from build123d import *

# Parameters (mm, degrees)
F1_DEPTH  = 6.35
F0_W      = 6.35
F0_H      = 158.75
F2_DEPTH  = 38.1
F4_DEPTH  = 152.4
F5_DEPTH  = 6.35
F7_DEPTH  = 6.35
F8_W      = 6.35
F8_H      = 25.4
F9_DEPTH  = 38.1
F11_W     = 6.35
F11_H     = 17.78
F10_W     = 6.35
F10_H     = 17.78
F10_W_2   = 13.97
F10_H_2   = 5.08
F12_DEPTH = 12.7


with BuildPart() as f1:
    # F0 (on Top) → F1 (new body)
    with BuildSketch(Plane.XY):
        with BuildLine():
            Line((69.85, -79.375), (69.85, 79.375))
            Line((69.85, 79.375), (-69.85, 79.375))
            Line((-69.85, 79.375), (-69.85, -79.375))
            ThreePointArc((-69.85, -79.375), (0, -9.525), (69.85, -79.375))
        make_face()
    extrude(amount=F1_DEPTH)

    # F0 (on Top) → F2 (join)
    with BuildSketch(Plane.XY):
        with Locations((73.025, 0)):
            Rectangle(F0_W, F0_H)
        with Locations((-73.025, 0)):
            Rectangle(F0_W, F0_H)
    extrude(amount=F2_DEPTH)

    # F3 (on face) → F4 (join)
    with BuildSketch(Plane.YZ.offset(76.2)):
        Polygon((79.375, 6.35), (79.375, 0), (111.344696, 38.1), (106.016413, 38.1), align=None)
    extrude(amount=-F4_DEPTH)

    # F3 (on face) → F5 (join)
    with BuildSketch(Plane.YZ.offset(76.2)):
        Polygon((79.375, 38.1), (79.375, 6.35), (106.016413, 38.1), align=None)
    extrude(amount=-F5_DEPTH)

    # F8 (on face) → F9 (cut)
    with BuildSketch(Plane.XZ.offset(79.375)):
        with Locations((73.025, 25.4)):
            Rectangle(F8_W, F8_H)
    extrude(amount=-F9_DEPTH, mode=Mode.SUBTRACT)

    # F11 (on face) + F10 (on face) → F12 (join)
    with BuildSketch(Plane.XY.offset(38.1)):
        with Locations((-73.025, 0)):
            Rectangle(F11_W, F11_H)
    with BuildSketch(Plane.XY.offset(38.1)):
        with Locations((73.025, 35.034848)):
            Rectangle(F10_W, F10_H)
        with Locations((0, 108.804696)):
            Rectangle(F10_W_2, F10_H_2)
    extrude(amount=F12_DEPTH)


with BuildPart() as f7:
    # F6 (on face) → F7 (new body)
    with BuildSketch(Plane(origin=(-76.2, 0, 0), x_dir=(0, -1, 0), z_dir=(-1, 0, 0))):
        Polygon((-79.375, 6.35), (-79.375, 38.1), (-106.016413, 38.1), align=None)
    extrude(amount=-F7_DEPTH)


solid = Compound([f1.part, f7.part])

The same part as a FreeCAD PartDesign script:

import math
import FreeCAD as App
import Part
import Sketcher
from FreeCAD import Vector
Q = App.Units.Quantity


def add_polygon(sketch, points):
    """Adds a closed chain of lines whose ends are joined by coincident constraints."""
    first, n = sketch.GeometryCount, len(points)
    for a, b in zip(points, points[1:] + points[:1]):
        sketch.addGeometry(Part.LineSegment(App.Vector(*a, 0), App.Vector(*b, 0)), False)
    for i in range(n):
        sketch.addConstraint(Sketcher.Constraint("Coincident", first + i, 2, first + (i + 1) % n, 1))

doc = App.newDocument("Part")
body = doc.addObject("PartDesign::Body", "Body")

# Sketch on XY plane
sketch1 = body.newObject("Sketcher::SketchObject", "Sketch")
sketch1.AttachmentSupport = (doc.getObject("XY_Plane"), [""])
sketch1.MapMode = "FlatFace"
sketch1.addGeometry([
    Part.LineSegment(Vector(70, -79, 0), Vector(70, 79, 0)),
    Part.LineSegment(Vector(70, 79, 0), Vector(-70, 79, 0)),
    Part.LineSegment(Vector(-70, 79, 0), Vector(-70, -79, 0)),
    Part.ArcOfCircle(Part.Circle(Vector(0, -79, 0), Vector(0, 0, 1), 70), math.radians(0), math.radians(180)),
], False)
sketch1.addConstraint([
    Sketcher.Constraint("Coincident", 0, 2, 1, 1),
    Sketcher.Constraint("Coincident", 1, 2, 2, 1),
    Sketcher.Constraint("Tangent", 2, 2, 3, 2),
    Sketcher.Constraint("Tangent", 3, 1, 0, 1),
    Sketcher.Constraint("Vertical", 0),
    Sketcher.Constraint("Horizontal", 1),
    Sketcher.Constraint("Vertical", 2),
    Sketcher.Constraint("Symmetric", 0, 2, 2, 2, -1, 1),
    Sketcher.Constraint("Radius", 3, Q("2.75 in")),
    Sketcher.Constraint("DistanceY", 0, 1, 0, 2, Q("6.25 in")),
])
pad1 = body.newObject("PartDesign::Pad", "Pad")
pad1.Profile = sketch1
pad1.Length = Q("0.25 in")

# Sketch on XY plane
sketch2 = body.newObject("Sketcher::SketchObject", "Sketch001")
sketch2.AttachmentSupport = (doc.getObject("XY_Plane"), [""])
sketch2.MapMode = "FlatFace"
add_polygon(sketch2, [(70, 79), (70, -79), (76, -79), (76, 79)])  # lines 0-3
add_polygon(sketch2, [(-76, 79), (-76, -79), (-70, -79), (-70, 79)])  # lines 4-7
sketch2.addConstraint([
    Sketcher.Constraint("Vertical", 0),
    Sketcher.Constraint("Horizontal", 1),
    Sketcher.Constraint("Vertical", 2),
    Sketcher.Constraint("Horizontal", 3),
    Sketcher.Constraint("Vertical", 4),
    Sketcher.Constraint("Horizontal", 5),
    Sketcher.Constraint("Vertical", 6),
    Sketcher.Constraint("Horizontal", 7),
    Sketcher.Constraint("Symmetric", 2, 2, 4, 2, -1, 1),
    Sketcher.Constraint("Symmetric", 0, 2, 6, 2, -1, 1),
    Sketcher.Constraint("Horizontal", 1, 2, 4, 2),
    Sketcher.Constraint("DistanceX", -1, 1, 1, 2, Q("3 in")),
    Sketcher.Constraint("DistanceX", 1, 1, 1, 2, Q("0.25 in")),
    Sketcher.Constraint("DistanceY", 0, 2, 0, 1, Q("6.25 in")),
])
pad2 = body.newObject("PartDesign::Pad", "Pad001")
pad2.Profile = sketch2
pad2.Length = Q("1.5 in")

# Sketch on YZ plane
sketch3 = body.newObject("Sketcher::SketchObject", "Sketch002")
sketch3.AttachmentSupport = (doc.getObject("YZ_Plane"), [""])
sketch3.MapMode = "FlatFace"
sketch3.AttachmentOffset = App.Placement(Vector(0, 0, 3 * 25.4), App.Rotation())
add_polygon(sketch3, [(79, 6), (79, 0), (111, 38), (106, 38)])  # lines 0-3
sketch3.addConstraint([
    Sketcher.Constraint("Vertical", 0),
    Sketcher.Constraint("Horizontal", 2),
    Sketcher.Constraint("PointOnObject", 0, 2, -1),
    Sketcher.Constraint("Parallel", 1, 3),
    Sketcher.Constraint("Angle", 1, Q("50 deg")),
    Sketcher.Constraint("DistanceY", 0, 2, 0, 1, Q("0.25 in")),
    Sketcher.Constraint("DistanceY", -1, 1, 1, 2, Q("1.5 in")),
    Sketcher.Constraint("DistanceX", -1, 1, 0, 2, Q("3.125 in")),
])
pad3 = body.newObject("PartDesign::Pad", "Pad002")
pad3.Profile = sketch3
pad3.Length = Q("6 in")
pad3.Reversed = True

# Sketch on YZ plane
sketch4 = body.newObject("Sketcher::SketchObject", "Sketch003")
sketch4.AttachmentSupport = (doc.getObject("YZ_Plane"), [""])
sketch4.MapMode = "FlatFace"
sketch4.AttachmentOffset = App.Placement(Vector(0, 0, 3 * 25.4), App.Rotation())
add_polygon(sketch4, [(79, 38), (79, 6), (106, 38)])  # lines 0-2
sketch4.addConstraint([
    Sketcher.Constraint("Vertical", 0),
    Sketcher.Constraint("Horizontal", 2),
    Sketcher.Constraint("Angle", 1, Q("50 deg")),
    Sketcher.Constraint("DistanceY", 0, 2, 0, 1, Q("1.25 in")),
    Sketcher.Constraint("DistanceY", -1, 1, 1, 2, Q("1.5 in")),
    Sketcher.Constraint("DistanceX", -1, 1, 0, 2, Q("3.125 in")),
])
pad4 = body.newObject("PartDesign::Pad", "Pad003")
pad4.Profile = sketch4
pad4.Length = Q("0.25 in")
pad4.Reversed = True

# Sketch on XZ plane
sketch5 = body.newObject("Sketcher::SketchObject", "Sketch004")
sketch5.AttachmentSupport = (doc.getObject("XZ_Plane"), [""])
sketch5.MapMode = "FlatFace"
sketch5.AttachmentOffset = App.Placement(Vector(0, 0, 3.125 * 25.4), App.Rotation())
add_polygon(sketch5, [(70, 38), (70, 13), (76, 13), (76, 38)])  # lines 0-3
sketch5.addConstraint([
    Sketcher.Constraint("Vertical", 0),
    Sketcher.Constraint("Horizontal", 1),
    Sketcher.Constraint("Vertical", 2),
    Sketcher.Constraint("Horizontal", 3),
    Sketcher.Constraint("DistanceY", 0, 2, 0, 1, Q("1 in")),
    Sketcher.Constraint("DistanceX", -1, 1, 1, 2, Q("3 in")),
    Sketcher.Constraint("DistanceX", 1, 1, 1, 2, Q("0.25 in")),
    Sketcher.Constraint("DistanceY", -1, 1, 0, 2, Q("0.5 in")),
])
pocket1 = body.newObject("PartDesign::Pocket", "Pocket")
pocket1.Profile = sketch5
pocket1.Length = Q("1.5 in")

# Sketch on XY plane
sketch6 = body.newObject("Sketcher::SketchObject", "Sketch005")
sketch6.AttachmentSupport = (doc.getObject("XY_Plane"), [""])
sketch6.MapMode = "FlatFace"
sketch6.AttachmentOffset = App.Placement(Vector(0, 0, 1.5 * 25.4), App.Rotation())
add_polygon(sketch6, [(-76, 9), (-76, -9), (-70, -9), (-70, 9)])  # lines 0-3
add_polygon(sketch6, [(70, 44), (70, 26), (76, 26), (76, 44)])  # lines 4-7
add_polygon(sketch6, [(-7, 111), (-7, 106), (7, 106), (7, 111)])  # lines 8-11
sketch6.addConstraint([
    Sketcher.Constraint("Vertical", 0),
    Sketcher.Constraint("Horizontal", 1),
    Sketcher.Constraint("Vertical", 2),
    Sketcher.Constraint("Horizontal", 3),
    Sketcher.Constraint("Vertical", 4),
    Sketcher.Constraint("Horizontal", 5),
    Sketcher.Constraint("Vertical", 6),
    Sketcher.Constraint("Horizontal", 7),
    Sketcher.Constraint("Vertical", 8),
    Sketcher.Constraint("Horizontal", 9),
    Sketcher.Constraint("Vertical", 10),
    Sketcher.Constraint("Horizontal", 11),
    Sketcher.Constraint("Equal", 3, 5),
    Sketcher.Constraint("Equal", 2, 4),
    Sketcher.Constraint("DistanceY", 0, 2, 0, 1, Q("0.7 in")),
    Sketcher.Constraint("DistanceY", 8, 2, 8, 1, Q("0.2 in")),
    Sketcher.Constraint("DistanceX", 0, 2, -1, 1, Q("3 in")),
    Sketcher.Constraint("DistanceX", -1, 1, 5, 2, Q("3 in")),
    Sketcher.Constraint("DistanceX", 1, 1, 1, 2, Q("0.25 in")),
    Sketcher.Constraint("DistanceX", 9, 1, 9, 2, Q("0.55 in")),
    Sketcher.Constraint("DistanceY", 0, 2, -1, 1, Q("0.35 in")),
    Sketcher.Constraint("DistanceX", 8, 2, -1, 1, Q("0.275 in")),
    Sketcher.Constraint("DistanceY", 7, 2, 8, 2, Q("62.339848 mm")),
    Sketcher.Constraint("DistanceY", -1, 1, 4, 2, Q("26.144848 mm")),
])
pad5 = body.newObject("PartDesign::Pad", "Pad004")
pad5.Profile = sketch6
pad5.Length = Q("0.5 in")
body2 = doc.addObject("PartDesign::Body", "Body001")

# Sketch on YZ plane
sketch7 = body2.newObject("Sketcher::SketchObject", "Sketch006")
sketch7.AttachmentSupport = (doc.getObject("YZ_Plane001"), [""])
sketch7.MapMode = "FlatFace"
sketch7.AttachmentOffset = App.Placement(Vector(0, 0, -3 * 25.4), App.Rotation())
add_polygon(sketch7, [(79, 6), (79, 38), (106, 38)])  # lines 0-2
sketch7.addConstraint([
    Sketcher.Constraint("Vertical", 0),
    Sketcher.Constraint("Horizontal", 1),
    Sketcher.Constraint("Angle", 2, Q("-130 deg")),
    Sketcher.Constraint("DistanceY", 0, 1, 0, 2, Q("1.25 in")),
    Sketcher.Constraint("DistanceY", -1, 1, 0, 2, Q("1.5 in")),
    Sketcher.Constraint("DistanceX", -1, 1, 0, 2, Q("3.125 in")),
])
pad6 = body2.newObject("PartDesign::Pad", "Pad005")
pad6.Profile = sketch7
pad6.Length = Q("0.25 in")

doc.recompute()
